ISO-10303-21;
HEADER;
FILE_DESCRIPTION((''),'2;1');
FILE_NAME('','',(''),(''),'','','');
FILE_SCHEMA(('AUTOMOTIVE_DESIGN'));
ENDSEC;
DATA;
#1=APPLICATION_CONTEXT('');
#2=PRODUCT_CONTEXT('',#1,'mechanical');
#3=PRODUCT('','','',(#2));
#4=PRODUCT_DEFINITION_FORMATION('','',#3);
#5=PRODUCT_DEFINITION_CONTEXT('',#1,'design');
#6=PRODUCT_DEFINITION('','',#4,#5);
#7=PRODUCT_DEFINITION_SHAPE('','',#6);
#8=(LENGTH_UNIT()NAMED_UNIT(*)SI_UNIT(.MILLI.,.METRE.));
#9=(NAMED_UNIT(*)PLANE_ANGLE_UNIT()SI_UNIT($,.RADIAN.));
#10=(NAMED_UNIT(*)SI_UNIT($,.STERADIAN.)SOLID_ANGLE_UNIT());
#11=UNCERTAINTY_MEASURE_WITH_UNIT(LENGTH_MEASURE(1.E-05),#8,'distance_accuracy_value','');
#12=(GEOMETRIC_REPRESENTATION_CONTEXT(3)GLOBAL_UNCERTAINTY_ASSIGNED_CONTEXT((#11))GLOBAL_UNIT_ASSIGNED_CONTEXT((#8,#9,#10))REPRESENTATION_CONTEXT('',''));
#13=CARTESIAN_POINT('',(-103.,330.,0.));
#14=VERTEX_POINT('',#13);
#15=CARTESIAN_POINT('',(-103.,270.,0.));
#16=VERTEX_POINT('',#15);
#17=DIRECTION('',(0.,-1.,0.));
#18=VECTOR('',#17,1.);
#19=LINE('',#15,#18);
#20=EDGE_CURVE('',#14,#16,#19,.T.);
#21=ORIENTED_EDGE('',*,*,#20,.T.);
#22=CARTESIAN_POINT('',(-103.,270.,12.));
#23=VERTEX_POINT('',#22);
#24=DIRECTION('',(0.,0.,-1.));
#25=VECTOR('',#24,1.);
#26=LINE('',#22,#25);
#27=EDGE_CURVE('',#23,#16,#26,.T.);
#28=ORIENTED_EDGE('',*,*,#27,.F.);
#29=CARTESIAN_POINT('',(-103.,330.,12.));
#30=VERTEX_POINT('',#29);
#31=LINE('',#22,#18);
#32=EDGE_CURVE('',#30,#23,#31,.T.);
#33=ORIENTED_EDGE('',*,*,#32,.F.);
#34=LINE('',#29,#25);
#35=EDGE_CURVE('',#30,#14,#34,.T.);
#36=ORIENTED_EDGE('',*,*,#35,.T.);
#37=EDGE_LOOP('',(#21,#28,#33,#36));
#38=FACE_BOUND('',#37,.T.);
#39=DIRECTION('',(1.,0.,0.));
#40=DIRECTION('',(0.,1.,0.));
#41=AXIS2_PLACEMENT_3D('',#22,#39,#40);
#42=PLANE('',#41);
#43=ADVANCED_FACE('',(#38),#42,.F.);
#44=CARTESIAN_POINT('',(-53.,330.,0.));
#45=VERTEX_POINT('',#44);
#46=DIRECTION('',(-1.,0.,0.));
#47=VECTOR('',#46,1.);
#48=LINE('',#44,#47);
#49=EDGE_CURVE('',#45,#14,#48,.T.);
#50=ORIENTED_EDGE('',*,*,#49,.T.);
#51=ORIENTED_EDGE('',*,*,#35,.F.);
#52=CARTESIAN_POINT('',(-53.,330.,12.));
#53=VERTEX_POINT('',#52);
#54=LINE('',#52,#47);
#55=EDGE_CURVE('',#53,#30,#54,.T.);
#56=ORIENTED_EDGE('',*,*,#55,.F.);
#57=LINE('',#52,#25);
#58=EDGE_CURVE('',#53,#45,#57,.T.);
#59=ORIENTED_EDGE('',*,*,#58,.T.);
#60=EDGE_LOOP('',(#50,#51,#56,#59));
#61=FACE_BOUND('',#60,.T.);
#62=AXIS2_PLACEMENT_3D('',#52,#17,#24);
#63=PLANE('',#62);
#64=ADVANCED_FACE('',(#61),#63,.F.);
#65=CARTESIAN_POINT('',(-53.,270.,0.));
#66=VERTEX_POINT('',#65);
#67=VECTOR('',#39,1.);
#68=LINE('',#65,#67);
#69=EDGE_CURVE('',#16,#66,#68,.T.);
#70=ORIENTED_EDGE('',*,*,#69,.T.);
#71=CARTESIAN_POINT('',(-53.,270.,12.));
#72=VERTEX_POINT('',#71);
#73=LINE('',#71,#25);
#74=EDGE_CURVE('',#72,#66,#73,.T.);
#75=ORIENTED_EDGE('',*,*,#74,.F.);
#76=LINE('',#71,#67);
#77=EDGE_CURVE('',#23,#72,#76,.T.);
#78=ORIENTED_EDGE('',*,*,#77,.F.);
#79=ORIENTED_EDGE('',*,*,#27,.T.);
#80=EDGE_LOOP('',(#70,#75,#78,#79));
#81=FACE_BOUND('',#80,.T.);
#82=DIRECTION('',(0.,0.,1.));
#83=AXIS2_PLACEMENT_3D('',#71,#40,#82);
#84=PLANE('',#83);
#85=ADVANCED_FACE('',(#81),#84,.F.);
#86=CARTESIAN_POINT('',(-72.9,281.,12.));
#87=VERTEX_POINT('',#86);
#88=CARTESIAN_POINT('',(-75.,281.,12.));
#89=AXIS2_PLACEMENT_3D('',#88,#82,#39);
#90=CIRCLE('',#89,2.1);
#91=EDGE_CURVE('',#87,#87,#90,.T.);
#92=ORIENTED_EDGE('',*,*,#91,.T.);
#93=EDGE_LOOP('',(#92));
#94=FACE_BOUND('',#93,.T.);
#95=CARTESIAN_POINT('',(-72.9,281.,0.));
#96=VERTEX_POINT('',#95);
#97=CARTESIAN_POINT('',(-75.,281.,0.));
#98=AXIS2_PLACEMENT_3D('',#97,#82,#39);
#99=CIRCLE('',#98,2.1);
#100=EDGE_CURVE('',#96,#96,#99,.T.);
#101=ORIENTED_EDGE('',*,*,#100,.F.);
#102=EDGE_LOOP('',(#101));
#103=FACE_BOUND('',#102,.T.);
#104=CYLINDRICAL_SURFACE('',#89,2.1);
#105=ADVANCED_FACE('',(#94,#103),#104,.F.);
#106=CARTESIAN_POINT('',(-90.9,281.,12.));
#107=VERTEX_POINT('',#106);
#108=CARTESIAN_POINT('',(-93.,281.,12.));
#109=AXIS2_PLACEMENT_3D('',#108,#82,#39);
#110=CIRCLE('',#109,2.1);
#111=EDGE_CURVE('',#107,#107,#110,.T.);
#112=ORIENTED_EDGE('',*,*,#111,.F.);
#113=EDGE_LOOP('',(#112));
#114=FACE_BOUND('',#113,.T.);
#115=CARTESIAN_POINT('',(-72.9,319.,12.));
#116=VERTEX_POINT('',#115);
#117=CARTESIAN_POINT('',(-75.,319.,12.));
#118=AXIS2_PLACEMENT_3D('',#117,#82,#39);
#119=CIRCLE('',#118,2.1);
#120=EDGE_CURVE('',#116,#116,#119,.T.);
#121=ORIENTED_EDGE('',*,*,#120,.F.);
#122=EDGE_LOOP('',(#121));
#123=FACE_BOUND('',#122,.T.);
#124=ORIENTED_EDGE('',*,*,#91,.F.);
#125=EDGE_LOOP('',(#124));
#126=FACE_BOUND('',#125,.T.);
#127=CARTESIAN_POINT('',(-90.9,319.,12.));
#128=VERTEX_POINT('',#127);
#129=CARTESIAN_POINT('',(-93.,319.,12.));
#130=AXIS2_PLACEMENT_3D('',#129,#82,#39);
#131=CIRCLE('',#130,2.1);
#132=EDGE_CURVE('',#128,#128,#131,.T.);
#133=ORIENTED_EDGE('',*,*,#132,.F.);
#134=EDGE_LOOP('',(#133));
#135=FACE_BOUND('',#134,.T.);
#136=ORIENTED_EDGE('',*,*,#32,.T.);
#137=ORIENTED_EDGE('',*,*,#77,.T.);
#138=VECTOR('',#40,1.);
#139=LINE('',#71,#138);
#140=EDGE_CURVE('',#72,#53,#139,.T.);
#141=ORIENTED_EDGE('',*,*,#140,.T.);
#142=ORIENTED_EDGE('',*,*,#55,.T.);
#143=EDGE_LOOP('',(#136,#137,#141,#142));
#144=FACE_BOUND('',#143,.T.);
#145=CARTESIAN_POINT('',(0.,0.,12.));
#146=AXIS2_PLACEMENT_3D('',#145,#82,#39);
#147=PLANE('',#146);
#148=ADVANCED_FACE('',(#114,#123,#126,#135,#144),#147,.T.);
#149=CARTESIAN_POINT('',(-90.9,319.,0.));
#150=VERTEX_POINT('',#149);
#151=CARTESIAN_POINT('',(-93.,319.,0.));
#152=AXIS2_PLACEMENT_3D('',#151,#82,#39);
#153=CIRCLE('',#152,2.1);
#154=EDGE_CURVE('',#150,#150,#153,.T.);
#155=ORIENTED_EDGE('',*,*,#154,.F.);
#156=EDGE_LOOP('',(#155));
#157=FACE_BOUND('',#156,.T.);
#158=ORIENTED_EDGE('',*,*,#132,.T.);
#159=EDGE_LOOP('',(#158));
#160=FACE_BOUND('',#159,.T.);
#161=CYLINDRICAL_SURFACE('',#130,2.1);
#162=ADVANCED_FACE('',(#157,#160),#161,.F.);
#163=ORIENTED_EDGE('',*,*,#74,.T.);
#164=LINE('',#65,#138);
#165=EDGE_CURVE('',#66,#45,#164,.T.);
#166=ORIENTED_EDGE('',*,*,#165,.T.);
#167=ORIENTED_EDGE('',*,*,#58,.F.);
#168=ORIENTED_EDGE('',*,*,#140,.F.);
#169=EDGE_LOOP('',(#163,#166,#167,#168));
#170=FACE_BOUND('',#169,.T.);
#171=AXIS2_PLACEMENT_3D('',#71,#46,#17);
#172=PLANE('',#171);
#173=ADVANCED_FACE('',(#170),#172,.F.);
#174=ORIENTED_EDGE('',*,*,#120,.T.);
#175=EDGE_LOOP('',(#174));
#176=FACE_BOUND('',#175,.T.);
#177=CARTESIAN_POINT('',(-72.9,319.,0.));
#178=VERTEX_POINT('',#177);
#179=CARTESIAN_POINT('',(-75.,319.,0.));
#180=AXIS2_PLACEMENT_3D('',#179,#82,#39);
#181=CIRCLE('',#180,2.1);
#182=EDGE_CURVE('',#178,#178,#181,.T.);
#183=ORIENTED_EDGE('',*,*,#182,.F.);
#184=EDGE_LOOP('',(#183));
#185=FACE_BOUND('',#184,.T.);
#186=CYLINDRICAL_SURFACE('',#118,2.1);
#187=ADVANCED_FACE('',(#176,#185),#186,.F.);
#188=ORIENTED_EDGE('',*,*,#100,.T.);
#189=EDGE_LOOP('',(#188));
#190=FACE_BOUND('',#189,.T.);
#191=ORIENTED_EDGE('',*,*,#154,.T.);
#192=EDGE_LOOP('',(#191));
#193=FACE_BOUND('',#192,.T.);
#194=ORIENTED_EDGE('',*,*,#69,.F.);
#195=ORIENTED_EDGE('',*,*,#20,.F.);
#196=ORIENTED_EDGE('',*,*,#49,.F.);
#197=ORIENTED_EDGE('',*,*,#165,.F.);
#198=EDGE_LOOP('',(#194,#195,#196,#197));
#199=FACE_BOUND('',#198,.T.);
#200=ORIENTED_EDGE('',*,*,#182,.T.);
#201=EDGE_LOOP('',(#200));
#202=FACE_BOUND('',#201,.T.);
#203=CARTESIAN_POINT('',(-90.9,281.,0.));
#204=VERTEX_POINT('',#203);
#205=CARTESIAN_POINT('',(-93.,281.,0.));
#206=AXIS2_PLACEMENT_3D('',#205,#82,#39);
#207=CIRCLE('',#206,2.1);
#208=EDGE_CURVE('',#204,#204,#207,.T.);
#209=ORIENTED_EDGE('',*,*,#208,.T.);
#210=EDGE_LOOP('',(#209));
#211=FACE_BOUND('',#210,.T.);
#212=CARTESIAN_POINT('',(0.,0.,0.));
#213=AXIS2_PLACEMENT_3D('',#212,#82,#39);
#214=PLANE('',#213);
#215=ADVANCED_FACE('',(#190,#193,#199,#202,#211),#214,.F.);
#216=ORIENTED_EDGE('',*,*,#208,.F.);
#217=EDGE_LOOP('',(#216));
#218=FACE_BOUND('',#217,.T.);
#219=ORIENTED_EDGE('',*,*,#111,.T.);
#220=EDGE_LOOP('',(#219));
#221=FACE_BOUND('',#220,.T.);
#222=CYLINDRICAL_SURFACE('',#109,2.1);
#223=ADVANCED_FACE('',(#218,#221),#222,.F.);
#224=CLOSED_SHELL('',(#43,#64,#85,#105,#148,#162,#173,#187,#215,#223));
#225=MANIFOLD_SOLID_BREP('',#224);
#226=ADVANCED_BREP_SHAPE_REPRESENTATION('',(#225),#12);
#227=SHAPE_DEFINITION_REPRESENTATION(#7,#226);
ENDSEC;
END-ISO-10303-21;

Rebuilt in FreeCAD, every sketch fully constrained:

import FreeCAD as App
import Part
import Sketcher
Q = App.Units.Quantity


def add_polygon(sketch, points):
    """Adds a closed chain of lines whose ends are joined by coincident constraints."""
    first, n = sketch.GeometryCount, len(points)
    for a, b in zip(points, points[1:] + points[:1]):
        sketch.addGeometry(Part.LineSegment(App.Vector(*a, 0), App.Vector(*b, 0)), False)
    for i in range(n):
        sketch.addConstraint(Sketcher.Constraint("Coincident", first + i, 2, first + (i + 1) % n, 1))

doc = App.newDocument("Part")
body = doc.addObject("PartDesign::Body", "Body")

# Sketch on XY plane
sketch1 = body.newObject("Sketcher::SketchObject", "Sketch")
sketch1.AttachmentSupport = (doc.getObject("XY_Plane"), [""])
sketch1.MapMode = "FlatFace"
add_polygon(sketch1, [(-103, 330), (-103, 270), (-53, 270), (-53, 330)])  # lines 0-3
sketch1.addConstraint([
    Sketcher.Constraint("Vertical", 0),
    Sketcher.Constraint("Horizontal", 1),
    Sketcher.Constraint("Vertical", 2),
    Sketcher.Constraint("Horizontal", 3),
    Sketcher.Constraint("DistanceX", 1, 1, 1, 2, Q("50 mm")),
    Sketcher.Constraint("DistanceY", 0, 2, 0, 1, Q("60 mm")),
    Sketcher.Constraint("DistanceX", 0, 2, -1, 1, Q("103 mm")),
    Sketcher.Constraint("DistanceY", -1, 1, 0, 2, Q("270 mm")),
])
pad1 = body.newObject("PartDesign::Pad", "Pad")
pad1.Profile = sketch1
pad1.Length = 12

# Sketch on XY plane
sketch2 = body.newObject("Sketcher::SketchObject", "Sketch001")
sketch2.AttachmentSupport = (doc.getObject("XY_Plane"), [""])
sketch2.MapMode = "FlatFace"
sketch2.AttachmentOffset = App.Placement(App.Vector(0, 0, 12), App.Rotation())
sketch2.addGeometry([
    Part.Circle(App.Vector(-93, 319, 0), App.Vector(0, 0, 1), 2.1),
    Part.Circle(App.Vector(-75, 319, 0), App.Vector(0, 0, 1), 2.1),
    Part.Circle(App.Vector(-75, 281, 0), App.Vector(0, 0, 1), 2.1),
    Part.Circle(App.Vector(-93, 281, 0), App.Vector(0, 0, 1), 2.1),
], False)
sketch2.addConstraint([
    Sketcher.Constraint("Equal", 0, 1),
    Sketcher.Constraint("Equal", 1, 2),
    Sketcher.Constraint("Equal", 2, 3),
    Sketcher.Constraint("Horizontal", 0, 3, 1, 3),
    Sketcher.Constraint("Horizontal", 2, 3, 3, 3),
    Sketcher.Constraint("Vertical", 1, 3, 2, 3),
    Sketcher.Constraint("Vertical", 0, 3, 3, 3),
    Sketcher.Constraint("Diameter", 0, Q("4.2 mm")),
    Sketcher.Constraint("DistanceX", 0, 3, -1, 1, Q("93 mm")),
    Sketcher.Constraint("DistanceY", -1, 1, 0, 3, Q("319 mm")),
    Sketcher.Constraint("DistanceX", 1, 3, -1, 1, Q("75 mm")),
    Sketcher.Constraint("DistanceY", -1, 1, 2, 3, Q("281 mm")),
])
doc.recompute()
hole = body.newObject("PartDesign::Hole", "Hole")
hole.Profile = sketch2
hole.ThreadType = "None"
hole.Diameter = 4.2
hole.DepthType = "ThroughAll"

doc.recompute()
